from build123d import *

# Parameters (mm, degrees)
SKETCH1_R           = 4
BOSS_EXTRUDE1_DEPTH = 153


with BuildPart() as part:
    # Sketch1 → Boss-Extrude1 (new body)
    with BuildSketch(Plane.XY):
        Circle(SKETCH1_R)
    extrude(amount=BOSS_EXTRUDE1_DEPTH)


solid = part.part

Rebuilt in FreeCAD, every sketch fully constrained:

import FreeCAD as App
import Part
import Sketcher

V = App.Vector
Q = App.Units.Quantity

doc = App.newDocument("Part")
body = doc.addObject("PartDesign::Body", "Body")

# Sketch on XY plane
sketch1 = doc.addObject("Sketcher::SketchObject", "Sketch")
body.addObject(sketch1)
sketch1.AttachmentSupport = (doc.XY_Plane, [""])
sketch1.MapMode = "FlatFace"
sketch1.addGeometry(Part.Circle(V(0, 0, 0), V(0, 0, 1), 4), False)
sketch1.addConstraint([
    Sketcher.Constraint("Coincident", 0, 3, -1, 1),
    Sketcher.Constraint("Diameter", 0, Q("8 mm")),
])
pad1 = doc.addObject("PartDesign::Pad", "Pad")
body.addObject(pad1)
pad1.Profile = sketch1
pad1.Length = 153

doc.recompute()
